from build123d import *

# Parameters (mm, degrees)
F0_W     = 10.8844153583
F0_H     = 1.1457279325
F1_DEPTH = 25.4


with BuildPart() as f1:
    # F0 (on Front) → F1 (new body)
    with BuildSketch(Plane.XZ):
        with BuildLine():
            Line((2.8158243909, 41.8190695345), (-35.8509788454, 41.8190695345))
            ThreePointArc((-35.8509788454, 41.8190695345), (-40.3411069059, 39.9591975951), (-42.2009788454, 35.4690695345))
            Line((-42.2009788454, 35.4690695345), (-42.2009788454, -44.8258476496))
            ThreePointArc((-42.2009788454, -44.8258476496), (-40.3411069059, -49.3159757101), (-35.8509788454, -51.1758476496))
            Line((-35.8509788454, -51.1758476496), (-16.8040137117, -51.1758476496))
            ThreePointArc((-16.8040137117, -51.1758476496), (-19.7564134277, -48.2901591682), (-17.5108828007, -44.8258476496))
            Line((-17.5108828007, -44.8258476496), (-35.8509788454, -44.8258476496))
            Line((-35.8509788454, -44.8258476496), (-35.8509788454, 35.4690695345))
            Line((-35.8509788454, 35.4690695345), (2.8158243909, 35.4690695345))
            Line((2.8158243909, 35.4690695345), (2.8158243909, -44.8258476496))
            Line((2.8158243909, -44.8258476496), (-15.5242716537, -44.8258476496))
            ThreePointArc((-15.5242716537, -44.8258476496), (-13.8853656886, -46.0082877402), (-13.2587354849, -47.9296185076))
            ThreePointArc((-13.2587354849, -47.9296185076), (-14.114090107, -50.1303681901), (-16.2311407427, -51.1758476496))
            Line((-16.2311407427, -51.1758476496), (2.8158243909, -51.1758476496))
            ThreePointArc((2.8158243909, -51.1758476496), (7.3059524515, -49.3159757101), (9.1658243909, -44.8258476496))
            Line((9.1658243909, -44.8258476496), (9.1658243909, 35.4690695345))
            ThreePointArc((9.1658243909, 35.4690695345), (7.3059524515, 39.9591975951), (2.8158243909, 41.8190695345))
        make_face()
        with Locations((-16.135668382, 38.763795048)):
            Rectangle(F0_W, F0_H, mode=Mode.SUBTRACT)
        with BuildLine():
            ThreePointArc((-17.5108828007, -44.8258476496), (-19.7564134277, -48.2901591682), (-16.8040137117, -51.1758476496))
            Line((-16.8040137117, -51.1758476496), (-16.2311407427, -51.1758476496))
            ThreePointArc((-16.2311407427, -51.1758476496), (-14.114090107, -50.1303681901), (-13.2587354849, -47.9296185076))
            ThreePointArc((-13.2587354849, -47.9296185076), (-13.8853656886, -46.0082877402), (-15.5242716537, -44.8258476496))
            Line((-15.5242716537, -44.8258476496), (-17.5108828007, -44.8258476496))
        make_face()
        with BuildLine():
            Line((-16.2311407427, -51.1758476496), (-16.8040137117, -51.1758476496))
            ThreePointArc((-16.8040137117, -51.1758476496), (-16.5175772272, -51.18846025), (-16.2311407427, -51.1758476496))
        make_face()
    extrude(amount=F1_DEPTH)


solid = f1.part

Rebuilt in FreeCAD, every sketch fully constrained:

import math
import FreeCAD as App
import Part
import Sketcher

V = App.Vector
Q = App.Units.Quantity

doc = App.newDocument("Part")
body = doc.addObject("PartDesign::Body", "Body")

# Sketch on XZ plane
sketch1 = body.newObject("Sketcher::SketchObject", "Sketch")
sketch1.AttachmentSupport = (doc.getObject("XZ_Plane"), [""])
sketch1.MapMode = "FlatFace"
sketch1.addGeometry([
    Part.LineSegment(V(2.8, 41.8, 0), V(-35.9, 41.8, 0)),  # 0
    Part.ArcOfCircle(Part.Circle(V(-35.9, 35.5, 0), V(0, 0, 1), 6.3), math.radians(90), math.radians(180)),  # 1
    Part.LineSegment(V(-42.2, 35.5, 0), V(-42.2, -44.8, 0)),  # 2
    Part.ArcOfCircle(Part.Circle(V(-35.9, -44.8, 0), V(0, 0, 1), 6.3), math.radians(-180), math.radians(-90)),  # 3
    Part.LineSegment(V(-35.9, -51.2, 0), V(-16.8, -51.2, 0)),  # 4
    Part.ArcOfCircle(Part.Circle(V(-16.5, -47.9, 0), V(0, 0, 1), 3.3), math.radians(-95.04), math.radians(-84.96)),  # 5
    Part.LineSegment(V(-16.2, -51.2, 0), V(2.8, -51.2, 0)),  # 6
    Part.ArcOfCircle(Part.Circle(V(2.8, -44.8, 0), V(0, 0, 1), 6.3), math.radians(-90), math.radians(0)),  # 7
    Part.LineSegment(V(9.2, -44.8, 0), V(9.2, 35.5, 0)),  # 8
    Part.ArcOfCircle(Part.Circle(V(2.8, 35.5, 0), V(0, 0, 1), 6.3), math.radians(0), math.radians(90)),  # 9
    Part.LineSegment(V(-35.9, -44.8, 0), V(-35.9, 35.5, 0)),  # 10
    Part.LineSegment(V(-35.9, 35.5, 0), V(2.8, 35.5, 0)),  # 11
    Part.LineSegment(V(2.8, 35.5, 0), V(2.8, -44.8, 0)),  # 12
    Part.LineSegment(V(2.8, -44.8, 0), V(-35.9, -44.8, 0)),  # 13
    Part.LineSegment(V(-10.7, 38.2, 0), V(-21.6, 38.2, 0)),  # 14
    Part.LineSegment(V(-21.6, 38.2, 0), V(-21.6, 39.3, 0)),  # 15
    Part.LineSegment(V(-21.6, 39.3, 0), V(-10.7, 39.3, 0)),  # 16
    Part.LineSegment(V(-10.7, 39.3, 0), V(-10.7, 38.2, 0)),  # 17
], False)
sketch1.addConstraint([
    Sketcher.Constraint("Tangent", 0, 2, 1, 1),
    Sketcher.Constraint("Tangent", 1, 2, 2, 1),
    Sketcher.Constraint("Tangent", 2, 2, 3, 1),
    Sketcher.Constraint("Tangent", 3, 2, 4, 1),
    Sketcher.Constraint("Coincident", 4, 2, 5, 1),
    Sketcher.Constraint("Coincident", 5, 2, 6, 1),
    Sketcher.Constraint("Tangent", 6, 2, 7, 1),
    Sketcher.Constraint("Tangent", 7, 2, 8, 1),
    Sketcher.Constraint("Tangent", 8, 2, 9, 1),
    Sketcher.Constraint("Tangent", 9, 2, 0, 1),
    Sketcher.Constraint("Coincident", 10, 2, 11, 1),
    Sketcher.Constraint("Coincident", 11, 2, 12, 1),
    Sketcher.Constraint("Coincident", 12, 2, 13, 1),
    Sketcher.Constraint("Coincident", 13, 2, 10, 1),
    Sketcher.Constraint("Coincident", 14, 2, 15, 1),
    Sketcher.Constraint("Coincident", 15, 2, 16, 1),
    Sketcher.Constraint("Coincident", 16, 2, 17, 1),
    Sketcher.Constraint("Coincident", 17, 2, 14, 1),
    Sketcher.Constraint("Horizontal", 0),
    Sketcher.Constraint("Vertical", 2),
    Sketcher.Constraint("Horizontal", 4),
    Sketcher.Constraint("Horizontal", 6),
    Sketcher.Constraint("Vertical", 8),
    Sketcher.Constraint("Vertical", 10),
    Sketcher.Constraint("Horizontal", 11),
    Sketcher.Constraint("Vertical", 12),
    Sketcher.Constraint("Horizontal", 13),
    Sketcher.Constraint("Horizontal", 14),
    Sketcher.Constraint("Vertical", 15),
    Sketcher.Constraint("Horizontal", 16),
    Sketcher.Constraint("Vertical", 17),
    Sketcher.Constraint("Coincident", 10, 2, 1, 3),
    Sketcher.Constraint("Coincident", 11, 2, 9, 3),
    Sketcher.Constraint("Coincident", 12, 2, 7, 3),
    Sketcher.Constraint("Coincident", 13, 2, 3, 3),
    Sketcher.Constraint("Equal", 4, 6),
    Sketcher.Constraint("Radius", 1, Q("0.25 in")),
    Sketcher.Constraint("Radius", 5, Q("3.258842 mm")),
    Sketcher.Constraint("DistanceX", 3, 3, 5, 3, Q("19.333402 mm")),
    Sketcher.Constraint("DistanceX", 14, 2, 9, 3, Q("24.3937 mm")),
    Sketcher.Constraint("DistanceX", 4, 1, 4, 2, Q("19.046965 mm")),
    Sketcher.Constraint("DistanceX", 14, 2, 14, 1, Q("10.884415 mm")),
    Sketcher.Constraint("DistanceY", 2, 2, 2, 1, Q("80.294917 mm")),
    Sketcher.Constraint("DistanceY", 15, 1, 15, 2, Q("1.145728 mm")),
    Sketcher.Constraint("DistanceX", 1, 3, -1, 1, Q("35.850979 mm")),
    Sketcher.Constraint("DistanceY", -1, 1, 1, 3, Q("35.46907 mm")),
    Sketcher.Constraint("DistanceY", -1, 1, 14, 2, Q("38.190931 mm")),
])
pad1 = body.newObject("PartDesign::Pad", "Pad")
pad1.Profile = sketch1
pad1.Length = Q("1 in")

doc.recompute()
